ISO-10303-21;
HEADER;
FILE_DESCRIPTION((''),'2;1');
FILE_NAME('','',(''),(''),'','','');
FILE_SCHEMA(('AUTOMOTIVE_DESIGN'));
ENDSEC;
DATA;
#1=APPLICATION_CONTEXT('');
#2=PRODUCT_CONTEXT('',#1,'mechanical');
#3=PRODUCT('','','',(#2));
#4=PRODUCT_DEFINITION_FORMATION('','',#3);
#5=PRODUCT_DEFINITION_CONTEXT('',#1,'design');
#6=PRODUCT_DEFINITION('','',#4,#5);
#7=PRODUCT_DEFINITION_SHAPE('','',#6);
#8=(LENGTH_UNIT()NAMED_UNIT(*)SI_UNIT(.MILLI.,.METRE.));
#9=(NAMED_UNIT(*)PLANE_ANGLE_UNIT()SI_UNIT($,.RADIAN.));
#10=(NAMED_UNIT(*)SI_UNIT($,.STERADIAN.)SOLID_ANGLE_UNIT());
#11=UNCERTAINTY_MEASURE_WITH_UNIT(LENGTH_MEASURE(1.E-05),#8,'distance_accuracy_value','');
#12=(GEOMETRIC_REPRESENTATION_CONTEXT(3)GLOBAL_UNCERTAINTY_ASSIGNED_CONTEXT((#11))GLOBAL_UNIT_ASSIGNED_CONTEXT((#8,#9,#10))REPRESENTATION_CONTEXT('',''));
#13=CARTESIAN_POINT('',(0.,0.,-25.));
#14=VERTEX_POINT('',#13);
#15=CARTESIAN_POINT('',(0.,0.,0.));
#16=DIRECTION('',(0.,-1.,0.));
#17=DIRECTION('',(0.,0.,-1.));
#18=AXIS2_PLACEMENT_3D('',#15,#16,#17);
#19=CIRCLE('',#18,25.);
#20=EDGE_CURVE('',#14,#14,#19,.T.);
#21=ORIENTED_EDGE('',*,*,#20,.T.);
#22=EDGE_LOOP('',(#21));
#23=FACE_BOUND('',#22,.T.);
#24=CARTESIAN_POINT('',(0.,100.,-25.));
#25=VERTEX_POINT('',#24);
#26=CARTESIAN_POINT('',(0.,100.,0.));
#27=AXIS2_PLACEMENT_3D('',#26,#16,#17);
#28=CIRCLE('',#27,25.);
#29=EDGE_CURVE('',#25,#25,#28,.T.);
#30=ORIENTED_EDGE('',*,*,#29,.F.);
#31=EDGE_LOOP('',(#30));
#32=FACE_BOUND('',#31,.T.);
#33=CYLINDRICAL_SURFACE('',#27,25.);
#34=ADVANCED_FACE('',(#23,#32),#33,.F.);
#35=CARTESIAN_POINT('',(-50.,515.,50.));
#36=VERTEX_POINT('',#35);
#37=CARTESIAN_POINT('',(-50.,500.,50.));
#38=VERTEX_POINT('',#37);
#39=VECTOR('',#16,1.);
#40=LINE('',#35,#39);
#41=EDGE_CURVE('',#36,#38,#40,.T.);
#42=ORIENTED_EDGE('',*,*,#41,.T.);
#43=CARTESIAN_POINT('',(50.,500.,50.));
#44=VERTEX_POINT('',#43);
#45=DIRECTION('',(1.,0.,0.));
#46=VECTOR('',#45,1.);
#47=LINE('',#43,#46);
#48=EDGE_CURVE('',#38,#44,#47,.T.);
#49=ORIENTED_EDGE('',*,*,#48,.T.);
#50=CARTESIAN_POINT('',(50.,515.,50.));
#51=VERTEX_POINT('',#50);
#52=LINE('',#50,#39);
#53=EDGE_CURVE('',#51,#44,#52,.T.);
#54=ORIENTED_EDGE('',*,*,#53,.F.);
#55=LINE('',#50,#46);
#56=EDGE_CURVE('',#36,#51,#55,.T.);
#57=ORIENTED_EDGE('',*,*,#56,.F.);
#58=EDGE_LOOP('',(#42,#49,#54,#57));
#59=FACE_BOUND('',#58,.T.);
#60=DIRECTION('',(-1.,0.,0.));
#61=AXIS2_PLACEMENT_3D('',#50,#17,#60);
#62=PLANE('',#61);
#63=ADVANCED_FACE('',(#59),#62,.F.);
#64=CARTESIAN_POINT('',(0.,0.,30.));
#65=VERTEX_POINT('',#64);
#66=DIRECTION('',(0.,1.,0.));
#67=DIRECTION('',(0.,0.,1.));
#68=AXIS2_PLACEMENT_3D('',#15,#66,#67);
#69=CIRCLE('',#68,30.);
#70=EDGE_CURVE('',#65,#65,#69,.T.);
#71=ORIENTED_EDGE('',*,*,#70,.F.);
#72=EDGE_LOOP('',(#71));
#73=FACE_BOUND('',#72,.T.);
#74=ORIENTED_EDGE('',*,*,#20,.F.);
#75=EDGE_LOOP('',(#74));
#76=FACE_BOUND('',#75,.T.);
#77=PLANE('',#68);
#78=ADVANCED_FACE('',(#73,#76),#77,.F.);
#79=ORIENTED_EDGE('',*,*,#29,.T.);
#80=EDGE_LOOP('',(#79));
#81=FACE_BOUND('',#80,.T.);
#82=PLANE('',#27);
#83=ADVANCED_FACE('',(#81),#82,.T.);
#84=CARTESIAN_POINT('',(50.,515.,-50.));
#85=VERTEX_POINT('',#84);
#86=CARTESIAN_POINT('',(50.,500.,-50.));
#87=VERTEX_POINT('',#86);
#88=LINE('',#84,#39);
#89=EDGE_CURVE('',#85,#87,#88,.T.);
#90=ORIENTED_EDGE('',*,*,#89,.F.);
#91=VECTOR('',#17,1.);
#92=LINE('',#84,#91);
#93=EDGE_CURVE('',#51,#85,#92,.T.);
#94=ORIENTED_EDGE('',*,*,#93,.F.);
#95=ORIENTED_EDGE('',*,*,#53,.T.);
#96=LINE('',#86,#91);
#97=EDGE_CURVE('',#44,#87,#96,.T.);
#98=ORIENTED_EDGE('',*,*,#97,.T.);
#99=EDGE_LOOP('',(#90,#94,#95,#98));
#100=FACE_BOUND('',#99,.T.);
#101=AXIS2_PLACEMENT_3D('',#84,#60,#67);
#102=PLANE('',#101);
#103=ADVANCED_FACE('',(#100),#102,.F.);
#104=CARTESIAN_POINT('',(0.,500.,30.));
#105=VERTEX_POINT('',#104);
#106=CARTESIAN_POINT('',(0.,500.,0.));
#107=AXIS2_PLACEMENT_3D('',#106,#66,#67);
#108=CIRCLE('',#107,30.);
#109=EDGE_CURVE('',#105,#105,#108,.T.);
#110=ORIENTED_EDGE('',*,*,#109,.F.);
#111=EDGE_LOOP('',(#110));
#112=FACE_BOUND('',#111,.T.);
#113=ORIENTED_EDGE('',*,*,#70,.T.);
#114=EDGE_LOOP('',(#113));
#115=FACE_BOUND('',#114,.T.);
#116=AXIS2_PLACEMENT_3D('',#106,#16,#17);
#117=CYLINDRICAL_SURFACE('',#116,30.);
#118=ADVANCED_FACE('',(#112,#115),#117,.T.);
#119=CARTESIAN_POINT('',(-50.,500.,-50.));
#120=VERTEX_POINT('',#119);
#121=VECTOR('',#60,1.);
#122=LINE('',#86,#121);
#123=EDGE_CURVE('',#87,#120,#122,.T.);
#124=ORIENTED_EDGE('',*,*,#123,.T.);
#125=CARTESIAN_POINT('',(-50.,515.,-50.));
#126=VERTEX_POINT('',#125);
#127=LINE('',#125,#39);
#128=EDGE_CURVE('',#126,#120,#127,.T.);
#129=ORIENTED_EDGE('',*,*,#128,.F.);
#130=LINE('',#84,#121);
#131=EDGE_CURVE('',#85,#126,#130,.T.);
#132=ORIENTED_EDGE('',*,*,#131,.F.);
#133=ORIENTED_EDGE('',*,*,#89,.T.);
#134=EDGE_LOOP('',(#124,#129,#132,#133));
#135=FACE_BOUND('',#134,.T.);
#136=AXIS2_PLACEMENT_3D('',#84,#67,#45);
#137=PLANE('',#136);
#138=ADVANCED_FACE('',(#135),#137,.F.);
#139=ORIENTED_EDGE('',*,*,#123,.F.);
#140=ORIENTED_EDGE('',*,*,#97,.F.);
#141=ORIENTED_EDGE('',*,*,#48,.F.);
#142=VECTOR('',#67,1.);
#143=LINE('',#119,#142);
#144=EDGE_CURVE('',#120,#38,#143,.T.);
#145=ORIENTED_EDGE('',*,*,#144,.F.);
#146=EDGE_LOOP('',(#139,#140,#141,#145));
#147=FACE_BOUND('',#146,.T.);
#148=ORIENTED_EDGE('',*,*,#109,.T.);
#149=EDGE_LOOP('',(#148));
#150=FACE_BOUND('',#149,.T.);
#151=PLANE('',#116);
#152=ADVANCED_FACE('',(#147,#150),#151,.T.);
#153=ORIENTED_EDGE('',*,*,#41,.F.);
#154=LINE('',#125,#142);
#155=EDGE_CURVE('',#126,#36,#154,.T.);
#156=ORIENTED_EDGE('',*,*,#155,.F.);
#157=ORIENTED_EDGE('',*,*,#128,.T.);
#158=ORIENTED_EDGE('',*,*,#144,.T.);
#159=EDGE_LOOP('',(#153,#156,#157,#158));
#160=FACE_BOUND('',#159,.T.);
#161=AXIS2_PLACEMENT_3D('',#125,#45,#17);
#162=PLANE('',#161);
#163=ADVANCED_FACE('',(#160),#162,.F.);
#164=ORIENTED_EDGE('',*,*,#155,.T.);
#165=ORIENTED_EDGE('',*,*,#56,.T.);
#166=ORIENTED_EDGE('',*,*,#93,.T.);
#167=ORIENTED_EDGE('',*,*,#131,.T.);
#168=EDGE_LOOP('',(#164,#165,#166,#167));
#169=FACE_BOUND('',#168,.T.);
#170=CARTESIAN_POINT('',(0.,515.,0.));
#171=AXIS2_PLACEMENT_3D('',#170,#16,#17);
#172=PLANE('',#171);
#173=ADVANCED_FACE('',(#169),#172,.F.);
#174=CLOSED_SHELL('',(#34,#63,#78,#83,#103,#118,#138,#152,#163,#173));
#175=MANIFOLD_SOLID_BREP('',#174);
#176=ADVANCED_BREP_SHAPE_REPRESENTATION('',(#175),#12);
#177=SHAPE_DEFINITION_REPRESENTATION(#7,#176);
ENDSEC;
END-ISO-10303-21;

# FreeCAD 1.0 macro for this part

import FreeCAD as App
import Part
import Sketcher

doc = App.newDocument("Part")
body = doc.addObject("PartDesign::Body", "Body")

# Sketch on XZ plane
sketch1 = doc.addObject("Sketcher::SketchObject", "Sketch")
body.addObject(sketch1)
sketch1.AttachmentSupport = (doc.XZ_Plane, [""])
sketch1.MapMode = "FlatFace"
sketch1.addGeometry(Part.Circle(App.Vector(0, 0, 0), App.Vector(0, 0, 1), 30), False)
sketch1.addConstraint([
    Sketcher.Constraint("Coincident", 0, 3, -1, 1),
    Sketcher.Constraint("Diameter", 0, 60.0),
])
pad1 = doc.addObject("PartDesign::Pad", "Pad")
body.addObject(pad1)
pad1.Profile = sketch1
pad1.Length = 500
pad1.Reversed = True

# Sketch on XZ plane
sketch2 = doc.addObject("Sketcher::SketchObject", "Sketch001")
body.addObject(sketch2)
sketch2.AttachmentSupport = (doc.XZ_Plane, [""])
sketch2.MapMode = "FlatFace"
sketch2.addGeometry(Part.Circle(App.Vector(0, 0, 0), App.Vector(0, 0, 1), 25), False)
sketch2.addConstraint([
    Sketcher.Constraint("Coincident", 0, 3, -1, 1),
    Sketcher.Constraint("Diameter", 0, 50.0),
])
pocket1 = doc.addObject("PartDesign::Pocket", "Pocket")
body.addObject(pocket1)
pocket1.Profile = sketch2
pocket1.Length = 100

# Sketch on XZ plane
sketch3 = doc.addObject("Sketcher::SketchObject", "Sketch002")
body.addObject(sketch3)
sketch3.AttachmentSupport = (doc.XZ_Plane, [""])
sketch3.MapMode = "FlatFace"
sketch3.AttachmentOffset = App.Placement(App.Vector(0, 0, -500), App.Rotation())
sketch3.addGeometry([
    Part.LineSegment(App.Vector(-50, -50, 0), App.Vector(-50, 50, 0)),
    Part.LineSegment(App.Vector(-50, 50, 0), App.Vector(50, 50, 0)),
    Part.LineSegment(App.Vector(50, 50, 0), App.Vector(50, -50, 0)),
    Part.LineSegment(App.Vector(50, -50, 0), App.Vector(-50, -50, 0)),
], False)
sketch3.addConstraint([
    Sketcher.Constraint("Coincident", 0, 2, 1, 1),
    Sketcher.Constraint("Coincident", 1, 2, 2, 1),
    Sketcher.Constraint("Coincident", 2, 2, 3, 1),
    Sketcher.Constraint("Coincident", 3, 2, 0, 1),
    Sketcher.Constraint("Vertical", 0),
    Sketcher.Constraint("Horizontal", 1),
    Sketcher.Constraint("Vertical", 2),
    Sketcher.Constraint("Horizontal", 3),
    Sketcher.Constraint("Symmetric", 0, 2, 2, 2, -1, 1),
    Sketcher.Constraint("Equal", 3, 0),
    Sketcher.Constraint("DistanceX", 1, 1, 1, 2, 100.0),
])
pad2 = doc.addObject("PartDesign::Pad", "Pad001")
body.addObject(pad2)
pad2.Profile = sketch3
pad2.Length = 15
pad2.Reversed = True

doc.recompute()
